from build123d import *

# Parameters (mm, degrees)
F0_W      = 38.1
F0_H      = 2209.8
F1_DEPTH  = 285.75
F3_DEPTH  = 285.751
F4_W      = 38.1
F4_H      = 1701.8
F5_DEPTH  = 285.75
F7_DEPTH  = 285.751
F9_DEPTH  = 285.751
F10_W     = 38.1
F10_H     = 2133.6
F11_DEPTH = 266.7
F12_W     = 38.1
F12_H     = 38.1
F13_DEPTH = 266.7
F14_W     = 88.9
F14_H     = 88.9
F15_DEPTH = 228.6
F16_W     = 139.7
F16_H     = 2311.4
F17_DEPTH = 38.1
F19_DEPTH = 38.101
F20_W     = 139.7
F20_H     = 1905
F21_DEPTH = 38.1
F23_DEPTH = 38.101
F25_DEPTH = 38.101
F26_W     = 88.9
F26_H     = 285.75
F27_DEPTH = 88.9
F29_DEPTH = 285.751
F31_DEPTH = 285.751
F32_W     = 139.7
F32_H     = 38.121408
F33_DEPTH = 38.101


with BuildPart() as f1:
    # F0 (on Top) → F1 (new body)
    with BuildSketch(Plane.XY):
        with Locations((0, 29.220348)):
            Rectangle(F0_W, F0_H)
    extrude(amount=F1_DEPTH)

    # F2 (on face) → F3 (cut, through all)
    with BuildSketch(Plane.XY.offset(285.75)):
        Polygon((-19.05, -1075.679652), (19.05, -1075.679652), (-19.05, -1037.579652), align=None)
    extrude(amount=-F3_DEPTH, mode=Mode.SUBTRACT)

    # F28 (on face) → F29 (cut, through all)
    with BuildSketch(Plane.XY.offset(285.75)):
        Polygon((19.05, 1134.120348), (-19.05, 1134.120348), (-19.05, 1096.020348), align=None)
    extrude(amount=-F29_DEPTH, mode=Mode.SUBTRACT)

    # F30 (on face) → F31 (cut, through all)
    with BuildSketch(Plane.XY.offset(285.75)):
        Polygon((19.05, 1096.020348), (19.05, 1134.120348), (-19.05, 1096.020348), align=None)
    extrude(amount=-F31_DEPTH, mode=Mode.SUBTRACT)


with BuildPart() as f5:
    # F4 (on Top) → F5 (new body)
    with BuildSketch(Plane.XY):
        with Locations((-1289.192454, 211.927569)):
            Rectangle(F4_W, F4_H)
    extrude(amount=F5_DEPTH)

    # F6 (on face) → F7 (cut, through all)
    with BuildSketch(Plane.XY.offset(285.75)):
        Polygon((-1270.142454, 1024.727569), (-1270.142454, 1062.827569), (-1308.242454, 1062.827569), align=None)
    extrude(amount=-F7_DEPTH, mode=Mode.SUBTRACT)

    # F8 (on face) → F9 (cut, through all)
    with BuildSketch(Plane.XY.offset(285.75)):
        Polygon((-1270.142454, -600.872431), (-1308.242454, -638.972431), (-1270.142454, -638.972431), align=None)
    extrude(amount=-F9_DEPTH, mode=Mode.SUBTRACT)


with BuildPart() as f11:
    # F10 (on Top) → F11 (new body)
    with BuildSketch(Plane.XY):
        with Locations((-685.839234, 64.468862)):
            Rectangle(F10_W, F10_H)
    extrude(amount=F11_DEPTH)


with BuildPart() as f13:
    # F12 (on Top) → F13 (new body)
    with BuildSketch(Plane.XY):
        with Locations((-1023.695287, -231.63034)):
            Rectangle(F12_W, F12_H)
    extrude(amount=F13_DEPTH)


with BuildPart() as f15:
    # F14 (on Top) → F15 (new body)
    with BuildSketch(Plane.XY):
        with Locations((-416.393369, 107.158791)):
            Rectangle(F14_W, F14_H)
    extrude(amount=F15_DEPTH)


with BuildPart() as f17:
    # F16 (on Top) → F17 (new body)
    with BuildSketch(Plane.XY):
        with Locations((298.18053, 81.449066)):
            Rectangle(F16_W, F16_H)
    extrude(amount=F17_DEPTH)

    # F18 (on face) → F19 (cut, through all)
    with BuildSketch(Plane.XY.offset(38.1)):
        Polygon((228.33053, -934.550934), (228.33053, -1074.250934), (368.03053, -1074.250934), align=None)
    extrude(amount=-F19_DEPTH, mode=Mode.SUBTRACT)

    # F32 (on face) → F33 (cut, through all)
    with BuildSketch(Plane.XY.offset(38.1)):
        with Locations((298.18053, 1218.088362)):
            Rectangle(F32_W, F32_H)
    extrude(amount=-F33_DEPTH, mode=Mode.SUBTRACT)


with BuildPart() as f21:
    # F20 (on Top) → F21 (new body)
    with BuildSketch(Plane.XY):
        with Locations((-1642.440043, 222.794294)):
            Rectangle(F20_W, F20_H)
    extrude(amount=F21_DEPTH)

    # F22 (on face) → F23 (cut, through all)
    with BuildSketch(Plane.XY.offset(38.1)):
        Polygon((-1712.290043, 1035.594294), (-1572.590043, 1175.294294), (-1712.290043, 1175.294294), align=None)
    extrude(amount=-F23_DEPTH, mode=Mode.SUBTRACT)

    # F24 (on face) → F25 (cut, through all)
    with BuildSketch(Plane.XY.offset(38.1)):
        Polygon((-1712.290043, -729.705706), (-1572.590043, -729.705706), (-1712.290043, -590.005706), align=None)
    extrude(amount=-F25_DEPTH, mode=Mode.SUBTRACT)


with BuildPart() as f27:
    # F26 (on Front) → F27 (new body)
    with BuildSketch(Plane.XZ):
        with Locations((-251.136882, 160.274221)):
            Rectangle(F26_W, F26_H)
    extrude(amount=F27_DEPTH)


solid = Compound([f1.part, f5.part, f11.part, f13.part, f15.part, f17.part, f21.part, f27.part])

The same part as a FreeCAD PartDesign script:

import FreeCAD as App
import Part
import Sketcher

V = App.Vector
Q = App.Units.Quantity

doc = App.newDocument("Part")
body = doc.addObject("PartDesign::Body", "Body")

# Sketch on XY plane
sketch1 = doc.addObject("Sketcher::SketchObject", "Sketch")
body.addObject(sketch1)
sketch1.AttachmentSupport = (doc.XY_Plane, [""])
sketch1.MapMode = "FlatFace"
sketch1.addGeometry([
    Part.LineSegment(V(-19, 1134, 0), V(-19, -1076, 0)),
    Part.LineSegment(V(-19, -1076, 0), V(19, -1076, 0)),
    Part.LineSegment(V(19, -1076, 0), V(19, 1134, 0)),
    Part.LineSegment(V(19, 1134, 0), V(-19, 1134, 0)),
], False)
sketch1.addConstraint([
    Sketcher.Constraint("Coincident", 0, 2, 1, 1),
    Sketcher.Constraint("Coincident", 1, 2, 2, 1),
    Sketcher.Constraint("Coincident", 2, 2, 3, 1),
    Sketcher.Constraint("Coincident", 3, 2, 0, 1),
    Sketcher.Constraint("Vertical", 0),
    Sketcher.Constraint("Horizontal", 1),
    Sketcher.Constraint("Vertical", 2),
    Sketcher.Constraint("Horizontal", 3),
    Sketcher.Constraint("DistanceY", 0, 2, 0, 1, Q("87 in")),
    Sketcher.Constraint("DistanceX", 1, 1, 1, 2, Q("1.5 in")),
    Sketcher.Constraint("DistanceX", 0, 2, -1, 1, Q("0.75 in")),
    Sketcher.Constraint("DistanceY", 0, 2, -1, 1, 1075.679652),
])
pad1 = doc.addObject("PartDesign::Pad", "Pad")
body.addObject(pad1)
pad1.Profile = sketch1
pad1.Length = Q("11.25 in")

# Sketch on XY plane
sketch2 = doc.addObject("Sketcher::SketchObject", "Sketch001")
body.addObject(sketch2)
sketch2.AttachmentSupport = (doc.XY_Plane, [""])
sketch2.MapMode = "FlatFace"
sketch2.AttachmentOffset = App.Placement(V(0, 0, 11.25 * 25.4), App.Rotation())
sketch2.addGeometry([
    Part.LineSegment(V(-19, -1076, 0), V(19, -1076, 0)),
    Part.LineSegment(V(19, -1076, 0), V(-19, -1038, 0)),
    Part.LineSegment(V(-19, -1038, 0), V(-19, -1076, 0)),
], False)
sketch2.addConstraint([
    Sketcher.Constraint("Coincident", 0, 2, 1, 1),
    Sketcher.Constraint("Coincident", 1, 2, 2, 1),
    Sketcher.Constraint("Coincident", 2, 2, 0, 1),
    Sketcher.Constraint("Horizontal", 0),
    Sketcher.Constraint("Vertical", 2),
    Sketcher.Constraint("Equal", 0, 2),
    Sketcher.Constraint("DistanceX", 0, 1, 0, 2, Q("1.5 in")),
    Sketcher.Constraint("DistanceX", -1, 1, 0, 2, Q("0.75 in")),
    Sketcher.Constraint("DistanceY", 0, 2, -1, 1, 1075.679652),
])
pocket1 = doc.addObject("PartDesign::Pocket", "Pocket")
body.addObject(pocket1)
pocket1.Profile = sketch2
pocket1.Type = "ThroughAll"

# Sketch on XY plane
sketch3 = doc.addObject("Sketcher::SketchObject", "Sketch002")
body.addObject(sketch3)
sketch3.AttachmentSupport = (doc.XY_Plane, [""])
sketch3.MapMode = "FlatFace"
sketch3.AttachmentOffset = App.Placement(V(0, 0, 11.25 * 25.4), App.Rotation())
sketch3.addGeometry([
    Part.LineSegment(V(19, 1134, 0), V(-19, 1134, 0)),
    Part.LineSegment(V(-19, 1134, 0), V(-19, 1096, 0)),
    Part.LineSegment(V(-19, 1096, 0), V(19, 1134, 0)),
], False)
sketch3.addConstraint([
    Sketcher.Constraint("Coincident", 0, 2, 1, 1),
    Sketcher.Constraint("Coincident", 1, 2, 2, 1),
    Sketcher.Constraint("Coincident", 2, 2, 0, 1),
    Sketcher.Constraint("Horizontal", 0),
    Sketcher.Constraint("Vertical", 1),
    Sketcher.Constraint("Equal", 0, 1),
    Sketcher.Constraint("DistanceX", 0, 2, 0, 1, Q("1.5 in")),
    Sketcher.Constraint("DistanceX", 0, 2, -1, 1, Q("0.75 in")),
    Sketcher.Constraint("DistanceY", -1, 1, 0, 2, 1134.120348),
])
pocket2 = doc.addObject("PartDesign::Pocket", "Pocket001")
body.addObject(pocket2)
pocket2.Profile = sketch3
pocket2.Type = "ThroughAll"

# Sketch on XY plane
sketch4 = doc.addObject("Sketcher::SketchObject", "Sketch003")
body.addObject(sketch4)
sketch4.AttachmentSupport = (doc.XY_Plane, [""])
sketch4.MapMode = "FlatFace"
sketch4.AttachmentOffset = App.Placement(V(0, 0, 11.25 * 25.4), App.Rotation())
sketch4.addGeometry([
    Part.LineSegment(V(19, 1096, 0), V(19, 1134, 0)),
    Part.LineSegment(V(19, 1134, 0), V(-19, 1096, 0)),
    Part.LineSegment(V(-19, 1096, 0), V(19, 1096, 0)),
], False)
sketch4.addConstraint([
    Sketcher.Constraint("Coincident", 0, 2, 1, 1),
    Sketcher.Constraint("Coincident", 1, 2, 2, 1),
    Sketcher.Constraint("Coincident", 2, 2, 0, 1),
    Sketcher.Constraint("Vertical", 0),
    Sketcher.Constraint("Horizontal", 2),
    Sketcher.Constraint("Equal", 2, 0),
    Sketcher.Constraint("DistanceX", 2, 1, 2, 2, Q("1.5 in")),
    Sketcher.Constraint("DistanceX", -1, 1, 0, 2, Q("0.75 in")),
    Sketcher.Constraint("DistanceY", -1, 1, 0, 2, 1134.120348),
])
pocket3 = doc.addObject("PartDesign::Pocket", "Pocket002")
body.addObject(pocket3)
pocket3.Profile = sketch4
pocket3.Type = "ThroughAll"
body2 = doc.addObject("PartDesign::Body", "Body001")

# Sketch on XY plane
sketch5 = doc.addObject("Sketcher::SketchObject", "Sketch004")
body2.addObject(sketch5)
sketch5.AttachmentSupport = (doc.getObject("XY_Plane001"), [""])
sketch5.MapMode = "FlatFace"
sketch5.addGeometry([
    Part.LineSegment(V(-1308, 1063, 0), V(-1308, -639, 0)),
    Part.LineSegment(V(-1308, -639, 0), V(-1270, -639, 0)),
    Part.LineSegment(V(-1270, -639, 0), V(-1270, 1063, 0)),
    Part.LineSegment(V(-1270, 1063, 0), V(-1308, 1063, 0)),
], False)
sketch5.addConstraint([
    Sketcher.Constraint("Coincident", 0, 2, 1, 1),
    Sketcher.Constraint("Coincident", 1, 2, 2, 1),
    Sketcher.Constraint("Coincident", 2, 2, 3, 1),
    Sketcher.Constraint("Coincident", 3, 2, 0, 1),
    Sketcher.Constraint("Vertical", 0),
    Sketcher.Constraint("Horizontal", 1),
    Sketcher.Constraint("Vertical", 2),
    Sketcher.Constraint("Horizontal", 3),
    Sketcher.Constraint("DistanceY", 0, 2, 0, 1, Q("67 in")),
    Sketcher.Constraint("DistanceX", 1, 1, 1, 2, Q("1.5 in")),
    Sketcher.Constraint("DistanceY", 0, 2, -1, 1, 638.972431),
    Sketcher.Constraint("DistanceX", 0, 2, -1, 1, 1308.242454),
])
pad2 = doc.addObject("PartDesign::Pad", "Pad001")
body2.addObject(pad2)
pad2.Profile = sketch5
pad2.Length = Q("11.25 in")

# Sketch on XY plane
sketch6 = doc.addObject("Sketcher::SketchObject", "Sketch005")
body2.addObject(sketch6)
sketch6.AttachmentSupport = (doc.getObject("XY_Plane001"), [""])
sketch6.MapMode = "FlatFace"
sketch6.AttachmentOffset = App.Placement(V(0, 0, 11.25 * 25.4), App.Rotation())
sketch6.addGeometry([
    Part.LineSegment(V(-1270, 1025, 0), V(-1270, 1063, 0)),
    Part.LineSegment(V(-1270, 1063, 0), V(-1308, 1063, 0)),
    Part.LineSegment(V(-1308, 1063, 0), V(-1270, 1025, 0)),
], False)
sketch6.addConstraint([
    Sketcher.Constraint("Coincident", 0, 2, 1, 1),
    Sketcher.Constraint("Coincident", 1, 2, 2, 1),
    Sketcher.Constraint("Coincident", 2, 2, 0, 1),
    Sketcher.Constraint("Vertical", 0),
    Sketcher.Constraint("Horizontal", 1),
    Sketcher.Constraint("Equal", 1, 0),
    Sketcher.Constraint("DistanceX", 1, 2, 1, 1, Q("1.5 in")),
    Sketcher.Constraint("DistanceY", -1, 1, 0, 2, 1062.827569),
    Sketcher.Constraint("DistanceX", 0, 2, -1, 1, 1270.142454),
])
pocket4 = doc.addObject("PartDesign::Pocket", "Pocket003")
body2.addObject(pocket4)
pocket4.Profile = sketch6
pocket4.Type = "ThroughAll"

# Sketch on XY plane
sketch7 = doc.addObject("Sketcher::SketchObject", "Sketch006")
body2.addObject(sketch7)
sketch7.AttachmentSupport = (doc.getObject("XY_Plane001"), [""])
sketch7.MapMode = "FlatFace"
sketch7.AttachmentOffset = App.Placement(V(0, 0, 11.25 * 25.4), App.Rotation())
sketch7.addGeometry([
    Part.LineSegment(V(-1270, -601, 0), V(-1308, -639, 0)),
    Part.LineSegment(V(-1308, -639, 0), V(-1270, -639, 0)),
    Part.LineSegment(V(-1270, -639, 0), V(-1270, -601, 0)),
], False)
sketch7.addConstraint([
    Sketcher.Constraint("Coincident", 0, 2, 1, 1),
    Sketcher.Constraint("Coincident", 1, 2, 2, 1),
    Sketcher.Constraint("Coincident", 2, 2, 0, 1),
    Sketcher.Constraint("Horizontal", 1),
    Sketcher.Constraint("Vertical", 2),
    Sketcher.Constraint("Equal", 1, 2),
    Sketcher.Constraint("DistanceX", 1, 1, 1, 2, Q("1.5 in")),
    Sketcher.Constraint("DistanceY", 0, 2, -1, 1, 638.972431),
    Sketcher.Constraint("DistanceX", 0, 2, -1, 1, 1308.242454),
])
pocket5 = doc.addObject("PartDesign::Pocket", "Pocket004")
body2.addObject(pocket5)
pocket5.Profile = sketch7
pocket5.Type = "ThroughAll"
body3 = doc.addObject("PartDesign::Body", "Body002")

# Sketch on XY plane
sketch8 = doc.addObject("Sketcher::SketchObject", "Sketch007")
body3.addObject(sketch8)
sketch8.AttachmentSupport = (doc.getObject("XY_Plane002"), [""])
sketch8.MapMode = "FlatFace"
sketch8.addGeometry([
    Part.LineSegment(V(-705, 1131, 0), V(-705, -1002, 0)),
    Part.LineSegment(V(-705, -1002, 0), V(-667, -1002, 0)),
    Part.LineSegment(V(-667, -1002, 0), V(-667, 1131, 0)),
    Part.LineSegment(V(-667, 1131, 0), V(-705, 1131, 0)),
], False)
sketch8.addConstraint([
    Sketcher.Constraint("Coincident", 0, 2, 1, 1),
    Sketcher.Constraint("Coincident", 1, 2, 2, 1),
    Sketcher.Constraint("Coincident", 2, 2, 3, 1),
    Sketcher.Constraint("Coincident", 3, 2, 0, 1),
    Sketcher.Constraint("Vertical", 0),
    Sketcher.Constraint("Horizontal", 1),
    Sketcher.Constraint("Vertical", 2),
    Sketcher.Constraint("Horizontal", 3),
    Sketcher.Constraint("DistanceY", 0, 2, 0, 1, Q("84 in")),
    Sketcher.Constraint("DistanceX", 1, 1, 1, 2, Q("1.5 in")),
    Sketcher.Constraint("DistanceY", 0, 2, -1, 1, 1002.331138),
    Sketcher.Constraint("DistanceX", 0, 2, -1, 1, 704.889234),
])
pad3 = doc.addObject("PartDesign::Pad", "Pad002")
body3.addObject(pad3)
pad3.Profile = sketch8
pad3.Length = Q("10.5 in")
body4 = doc.addObject("PartDesign::Body", "Body003")

# Sketch on XY plane
sketch9 = doc.addObject("Sketcher::SketchObject", "Sketch008")
body4.addObject(sketch9)
sketch9.AttachmentSupport = (doc.getObject("XY_Plane003"), [""])
sketch9.MapMode = "FlatFace"
sketch9.addGeometry([
    Part.LineSegment(V(-1043, -213, 0), V(-1043, -251, 0)),
    Part.LineSegment(V(-1043, -251, 0), V(-1005, -251, 0)),
    Part.LineSegment(V(-1005, -251, 0), V(-1005, -213, 0)),
    Part.LineSegment(V(-1005, -213, 0), V(-1043, -213, 0)),
], False)
sketch9.addConstraint([
    Sketcher.Constraint("Coincident", 0, 2, 1, 1),
    Sketcher.Constraint("Coincident", 1, 2, 2, 1),
    Sketcher.Constraint("Coincident", 2, 2, 3, 1),
    Sketcher.Constraint("Coincident", 3, 2, 0, 1),
    Sketcher.Constraint("Vertical", 0),
    Sketcher.Constraint("Horizontal", 1),
    Sketcher.Constraint("Vertical", 2),
    Sketcher.Constraint("Horizontal", 3),
    Sketcher.Constraint("Equal", 3, 0),
    Sketcher.Constraint("DistanceX", 1, 1, 1, 2, Q("1.5 in")),
    Sketcher.Constraint("DistanceY", 0, 2, -1, 1, 250.68034),
    Sketcher.Constraint("DistanceX", 0, 2, -1, 1, 1042.745287),
])
pad4 = doc.addObject("PartDesign::Pad", "Pad003")
body4.addObject(pad4)
pad4.Profile = sketch9
pad4.Length = Q("10.5 in")
body5 = doc.addObject("PartDesign::Body", "Body004")

# Sketch on XY plane
sketch10 = doc.addObject("Sketcher::SketchObject", "Sketch009")
body5.addObject(sketch10)
sketch10.AttachmentSupport = (doc.getObject("XY_Plane004"), [""])
sketch10.MapMode = "FlatFace"
sketch10.addGeometry([
    Part.LineSegment(V(-461, 152, 0), V(-461, 63, 0)),
    Part.LineSegment(V(-461, 63, 0), V(-372, 63, 0)),
    Part.LineSegment(V(-372, 63, 0), V(-372, 152, 0)),
    Part.LineSegment(V(-372, 152, 0), V(-461, 152, 0)),
], False)
sketch10.addConstraint([
    Sketcher.Constraint("Coincident", 0, 2, 1, 1),
    Sketcher.Constraint("Coincident", 1, 2, 2, 1),
    Sketcher.Constraint("Coincident", 2, 2, 3, 1),
    Sketcher.Constraint("Coincident", 3, 2, 0, 1),
    Sketcher.Constraint("Vertical", 0),
    Sketcher.Constraint("Horizontal", 1),
    Sketcher.Constraint("Vertical", 2),
    Sketcher.Constraint("Horizontal", 3),
    Sketcher.Constraint("Equal", 3, 0),
    Sketcher.Constraint("DistanceX", 1, 1, 1, 2, Q("3.5 in")),
    Sketcher.Constraint("DistanceX", 0, 2, -1, 1, 460.843369),
    Sketcher.Constraint("DistanceY", -1, 1, 0, 2, 62.708791),
])
pad5 = doc.addObject("PartDesign::Pad", "Pad004")
body5.addObject(pad5)
pad5.Profile = sketch10
pad5.Length = Q("9 in")
body6 = doc.addObject("PartDesign::Body", "Body005")

# Sketch on XY plane
sketch11 = doc.addObject("Sketcher::SketchObject", "Sketch010")
body6.addObject(sketch11)
sketch11.AttachmentSupport = (doc.getObject("XY_Plane005"), [""])
sketch11.MapMode = "FlatFace"
sketch11.addGeometry([
    Part.LineSegment(V(228, 1237, 0), V(228, -1074, 0)),
    Part.LineSegment(V(228, -1074, 0), V(368, -1074, 0)),
    Part.LineSegment(V(368, -1074, 0), V(368, 1237, 0)),
    Part.LineSegment(V(368, 1237, 0), V(228, 1237, 0)),
], False)
sketch11.addConstraint([
    Sketcher.Constraint("Coincident", 0, 2, 1, 1),
    Sketcher.Constraint("Coincident", 1, 2, 2, 1),
    Sketcher.Constraint("Coincident", 2, 2, 3, 1),
    Sketcher.Constraint("Coincident", 3, 2, 0, 1),
    Sketcher.Constraint("Vertical", 0),
    Sketcher.Constraint("Horizontal", 1),
    Sketcher.Constraint("Vertical", 2),
    Sketcher.Constraint("Horizontal", 3),
    Sketcher.Constraint("DistanceY", 0, 2, 0, 1, Q("91 in")),
    Sketcher.Constraint("DistanceX", 1, 1, 1, 2, Q("5.5 in")),
    Sketcher.Constraint("DistanceX", -1, 1, 0, 2, 228.33053),
    Sketcher.Constraint("DistanceY", 0, 2, -1, 1, 1074.250934),
])
pad6 = doc.addObject("PartDesign::Pad", "Pad005")
body6.addObject(pad6)
pad6.Profile = sketch11
pad6.Length = Q("1.5 in")

# Sketch on XY plane
sketch12 = doc.addObject("Sketcher::SketchObject", "Sketch011")
body6.addObject(sketch12)
sketch12.AttachmentSupport = (doc.getObject("XY_Plane005"), [""])
sketch12.MapMode = "FlatFace"
sketch12.AttachmentOffset = App.Placement(V(0, 0, 1.5 * 25.4), App.Rotation())
sketch12.addGeometry([
    Part.LineSegment(V(228, -935, 0), V(228, -1074, 0)),
    Part.LineSegment(V(228, -1074, 0), V(368, -1074, 0)),
    Part.LineSegment(V(368, -1074, 0), V(228, -935, 0)),
], False)
sketch12.addConstraint([
    Sketcher.Constraint("Coincident", 0, 2, 1, 1),
    Sketcher.Constraint("Coincident", 1, 2, 2, 1),
    Sketcher.Constraint("Coincident", 2, 2, 0, 1),
    Sketcher.Constraint("Vertical", 0),
    Sketcher.Constraint("Horizontal", 1),
    Sketcher.Constraint("Equal", 1, 0),
    Sketcher.Constraint("DistanceX", 1, 1, 1, 2, Q("5.5 in")),
    Sketcher.Constraint("DistanceX", -1, 1, 0, 2, 228.33053),
    Sketcher.Constraint("DistanceY", 0, 2, -1, 1, 1074.250934),
])
pocket6 = doc.addObject("PartDesign::Pocket", "Pocket005")
body6.addObject(pocket6)
pocket6.Profile = sketch12
pocket6.Type = "ThroughAll"

# Sketch on XY plane
sketch13 = doc.addObject("Sketcher::SketchObject", "Sketch012")
body6.addObject(sketch13)
sketch13.AttachmentSupport = (doc.getObject("XY_Plane005"), [""])
sketch13.MapMode = "FlatFace"
sketch13.AttachmentOffset = App.Placement(V(0, 0, 1.5 * 25.4), App.Rotation())
sketch13.addGeometry([
    Part.LineSegment(V(228, 1237, 0), V(228, 1199, 0)),
    Part.LineSegment(V(228, 1199, 0), V(368, 1199, 0)),
    Part.LineSegment(V(368, 1199, 0), V(368, 1237, 0)),
    Part.LineSegment(V(368, 1237, 0), V(228, 1237, 0)),
], False)
sketch13.addConstraint([
    Sketcher.Constraint("Coincident", 0, 2, 1, 1),
    Sketcher.Constraint("Coincident", 1, 2, 2, 1),
    Sketcher.Constraint("Coincident", 2, 2, 3, 1),
    Sketcher.Constraint("Coincident", 3, 2, 0, 1),
    Sketcher.Constraint("Vertical", 0),
    Sketcher.Constraint("Horizontal", 1),
    Sketcher.Constraint("Vertical", 2),
    Sketcher.Constraint("Horizontal", 3),
    Sketcher.Constraint("DistanceX", 1, 1, 1, 2, Q("5.5 in")),
    Sketcher.Constraint("DistanceY", 0, 2, 0, 1, 38.121408),
    Sketcher.Constraint("DistanceX", -1, 1, 0, 2, 228.33053),
    Sketcher.Constraint("DistanceY", -1, 1, 0, 2, 1199.027658),
])
pocket7 = doc.addObject("PartDesign::Pocket", "Pocket006")
body6.addObject(pocket7)
pocket7.Profile = sketch13
pocket7.Type = "ThroughAll"
body7 = doc.addObject("PartDesign::Body", "Body006")

# Sketch on XY plane
sketch14 = doc.addObject("Sketcher::SketchObject", "Sketch013")
body7.addObject(sketch14)
sketch14.AttachmentSupport = (doc.getObject("XY_Plane006"), [""])
sketch14.MapMode = "FlatFace"
sketch14.addGeometry([
    Part.LineSegment(V(-1712, 1175, 0), V(-1712, -730, 0)),
    Part.LineSegment(V(-1712, -730, 0), V(-1573, -730, 0)),
    Part.LineSegment(V(-1573, -730, 0), V(-1573, 1175, 0)),
    Part.LineSegment(V(-1573, 1175, 0), V(-1712, 1175, 0)),
], False)
sketch14.addConstraint([
    Sketcher.Constraint("Coincident", 0, 2, 1, 1),
    Sketcher.Constraint("Coincident", 1, 2, 2, 1),
    Sketcher.Constraint("Coincident", 2, 2, 3, 1),
    Sketcher.Constraint("Coincident", 3, 2, 0, 1),
    Sketcher.Constraint("Vertical", 0),
    Sketcher.Constraint("Horizontal", 1),
    Sketcher.Constraint("Vertical", 2),
    Sketcher.Constraint("Horizontal", 3),
    Sketcher.Constraint("DistanceY", 0, 2, 0, 1, Q("75 in")),
    Sketcher.Constraint("DistanceX", 1, 1, 1, 2, Q("5.5 in")),
    Sketcher.Constraint("DistanceX", 0, 2, -1, 1, 1712.290043),
    Sketcher.Constraint("DistanceY", 0, 2, -1, 1, 729.705706),
])
pad7 = doc.addObject("PartDesign::Pad", "Pad006")
body7.addObject(pad7)
pad7.Profile = sketch14
pad7.Length = Q("1.5 in")

# Sketch on XY plane
sketch15 = doc.addObject("Sketcher::SketchObject", "Sketch014")
body7.addObject(sketch15)
sketch15.AttachmentSupport = (doc.getObject("XY_Plane006"), [""])
sketch15.MapMode = "FlatFace"
sketch15.AttachmentOffset = App.Placement(V(0, 0, 1.5 * 25.4), App.Rotation())
sketch15.addGeometry([
    Part.LineSegment(V(-1712, 1036, 0), V(-1573, 1175, 0)),
    Part.LineSegment(V(-1573, 1175, 0), V(-1712, 1175, 0)),
    Part.LineSegment(V(-1712, 1175, 0), V(-1712, 1036, 0)),
], False)
sketch15.addConstraint([
    Sketcher.Constraint("Coincident", 0, 2, 1, 1),
    Sketcher.Constraint("Coincident", 1, 2, 2, 1),
    Sketcher.Constraint("Coincident", 2, 2, 0, 1),
    Sketcher.Constraint("Horizontal", 1),
    Sketcher.Constraint("Vertical", 2),
    Sketcher.Constraint("Equal", 1, 2),
    Sketcher.Constraint("DistanceX", 1, 2, 1, 1, Q("5.5 in")),
    Sketcher.Constraint("DistanceX", 0, 2, -1, 1, 1572.590043),
    Sketcher.Constraint("DistanceY", -1, 1, 0, 2, 1175.294294),
])
pocket8 = doc.addObject("PartDesign::Pocket", "Pocket007")
body7.addObject(pocket8)
pocket8.Profile = sketch15
pocket8.Type = "ThroughAll"

# Sketch on XY plane
sketch16 = doc.addObject("Sketcher::SketchObject", "Sketch015")
body7.addObject(sketch16)
sketch16.AttachmentSupport = (doc.getObject("XY_Plane006"), [""])
sketch16.MapMode = "FlatFace"
sketch16.AttachmentOffset = App.Placement(V(0, 0, 1.5 * 25.4), App.Rotation())
sketch16.addGeometry([
    Part.LineSegment(V(-1712, -730, 0), V(-1573, -730, 0)),
    Part.LineSegment(V(-1573, -730, 0), V(-1712, -590, 0)),
    Part.LineSegment(V(-1712, -590, 0), V(-1712, -730, 0)),
], False)
sketch16.addConstraint([
    Sketcher.Constraint("Coincident", 0, 2, 1, 1),
    Sketcher.Constraint("Coincident", 1, 2, 2, 1),
    Sketcher.Constraint("Coincident", 2, 2, 0, 1),
    Sketcher.Constraint("Horizontal", 0),
    Sketcher.Constraint("Vertical", 2),
    Sketcher.Constraint("Equal", 0, 2),
    Sketcher.Constraint("DistanceX", 0, 1, 0, 2, Q("5.5 in")),
    Sketcher.Constraint("DistanceX", 0, 2, -1, 1, 1572.590043),
    Sketcher.Constraint("DistanceY", 0, 2, -1, 1, 729.705706),
])
pocket9 = doc.addObject("PartDesign::Pocket", "Pocket008")
body7.addObject(pocket9)
pocket9.Profile = sketch16
pocket9.Type = "ThroughAll"
body8 = doc.addObject("PartDesign::Body", "Body007")

# Sketch on XZ plane
sketch17 = doc.addObject("Sketcher::SketchObject", "Sketch016")
body8.addObject(sketch17)
sketch17.AttachmentSupport = (doc.getObject("XZ_Plane007"), [""])
sketch17.MapMode = "FlatFace"
sketch17.addGeometry([
    Part.LineSegment(V(-296, 303, 0), V(-296, 17, 0)),
    Part.LineSegment(V(-296, 17, 0), V(-207, 17, 0)),
    Part.LineSegment(V(-207, 17, 0), V(-207, 303, 0)),
    Part.LineSegment(V(-207, 303, 0), V(-296, 303, 0)),
], False)
sketch17.addConstraint([
    Sketcher.Constraint("Coincident", 0, 2, 1, 1),
    Sketcher.Constraint("Coincident", 1, 2, 2, 1),
    Sketcher.Constraint("Coincident", 2, 2, 3, 1),
    Sketcher.Constraint("Coincident", 3, 2, 0, 1),
    Sketcher.Constraint("Vertical", 0),
    Sketcher.Constraint("Horizontal", 1),
    Sketcher.Constraint("Vertical", 2),
    Sketcher.Constraint("Horizontal", 3),
    Sketcher.Constraint("DistanceX", 1, 1, 1, 2, Q("3.5 in")),
    Sketcher.Constraint("DistanceY", 0, 2, 0, 1, Q("11.25 in")),
    Sketcher.Constraint("DistanceX", 0, 2, -1, 1, 295.586882),
    Sketcher.Constraint("DistanceY", -1, 1, 0, 2, 17.399221),
])
pad8 = doc.addObject("PartDesign::Pad", "Pad007")
body8.addObject(pad8)
pad8.Profile = sketch17
pad8.Length = Q("3.5 in")

doc.recompute()
